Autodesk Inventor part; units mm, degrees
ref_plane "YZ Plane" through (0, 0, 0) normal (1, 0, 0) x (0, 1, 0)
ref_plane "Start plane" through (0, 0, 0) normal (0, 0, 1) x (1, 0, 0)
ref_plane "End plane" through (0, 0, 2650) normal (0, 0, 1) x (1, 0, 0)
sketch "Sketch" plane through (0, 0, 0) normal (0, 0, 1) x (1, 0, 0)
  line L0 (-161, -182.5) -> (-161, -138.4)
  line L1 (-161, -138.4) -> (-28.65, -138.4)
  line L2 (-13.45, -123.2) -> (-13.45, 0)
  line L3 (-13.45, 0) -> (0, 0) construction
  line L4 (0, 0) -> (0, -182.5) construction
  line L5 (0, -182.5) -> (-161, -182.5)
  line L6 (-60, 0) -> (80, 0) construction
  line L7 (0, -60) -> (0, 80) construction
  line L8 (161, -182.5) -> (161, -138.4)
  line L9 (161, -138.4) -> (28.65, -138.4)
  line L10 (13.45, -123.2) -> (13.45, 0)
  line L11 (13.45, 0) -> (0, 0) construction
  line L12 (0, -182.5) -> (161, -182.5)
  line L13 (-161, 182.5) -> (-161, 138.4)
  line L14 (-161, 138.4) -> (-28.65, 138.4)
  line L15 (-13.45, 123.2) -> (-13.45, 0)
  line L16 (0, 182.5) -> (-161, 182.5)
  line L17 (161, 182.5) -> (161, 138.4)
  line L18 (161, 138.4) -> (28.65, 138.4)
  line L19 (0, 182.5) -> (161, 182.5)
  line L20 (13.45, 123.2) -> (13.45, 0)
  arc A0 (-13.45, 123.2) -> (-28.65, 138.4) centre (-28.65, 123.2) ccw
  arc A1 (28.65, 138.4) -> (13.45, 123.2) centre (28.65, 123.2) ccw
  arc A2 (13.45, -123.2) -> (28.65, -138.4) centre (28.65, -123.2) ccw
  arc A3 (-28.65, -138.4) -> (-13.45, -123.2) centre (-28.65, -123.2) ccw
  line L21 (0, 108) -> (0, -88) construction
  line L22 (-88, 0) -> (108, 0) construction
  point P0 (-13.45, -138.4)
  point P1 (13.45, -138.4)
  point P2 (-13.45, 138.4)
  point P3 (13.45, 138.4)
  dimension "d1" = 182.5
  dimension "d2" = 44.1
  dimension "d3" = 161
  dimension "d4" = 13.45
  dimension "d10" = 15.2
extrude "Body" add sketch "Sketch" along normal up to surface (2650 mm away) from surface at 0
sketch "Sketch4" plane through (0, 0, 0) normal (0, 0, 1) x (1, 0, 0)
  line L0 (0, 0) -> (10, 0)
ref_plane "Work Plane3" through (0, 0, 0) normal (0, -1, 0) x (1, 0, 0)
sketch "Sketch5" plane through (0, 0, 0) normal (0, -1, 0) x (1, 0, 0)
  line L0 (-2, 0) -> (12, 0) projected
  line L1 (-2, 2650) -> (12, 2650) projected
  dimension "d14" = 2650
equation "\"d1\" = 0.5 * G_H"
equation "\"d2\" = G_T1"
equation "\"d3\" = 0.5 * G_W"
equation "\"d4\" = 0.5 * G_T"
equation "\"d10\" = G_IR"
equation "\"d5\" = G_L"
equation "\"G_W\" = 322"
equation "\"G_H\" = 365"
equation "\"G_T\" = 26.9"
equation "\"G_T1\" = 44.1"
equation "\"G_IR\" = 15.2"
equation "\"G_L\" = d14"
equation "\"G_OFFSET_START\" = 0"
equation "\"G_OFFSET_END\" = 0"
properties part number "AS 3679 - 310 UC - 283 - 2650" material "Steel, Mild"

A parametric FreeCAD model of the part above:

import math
import FreeCAD as App
import Part
import Sketcher

V = App.Vector
Q = App.Units.Quantity

doc = App.newDocument("Part")
body = doc.addObject("PartDesign::Body", "Body")

# Sketch on XY plane
sketch1 = doc.addObject("Sketcher::SketchObject", "Sketch")
body.addObject(sketch1)
sketch1.AttachmentSupport = (doc.XY_Plane, [""])
sketch1.MapMode = "FlatFace"
sketch1.addGeometry([
    Part.LineSegment(V(-161, -138, 0), V(-161, -182, 0)),  # 0
    Part.LineSegment(V(-161, -182, 0), V(161, -182, 0)),  # 1
    Part.LineSegment(V(161, -182, 0), V(161, -138, 0)),  # 2
    Part.LineSegment(V(161, -138, 0), V(29, -138, 0)),  # 3
    Part.ArcOfCircle(Part.Circle(V(29, -123, 0), V(0, 0, 1), 15), math.radians(180), math.radians(270)),  # 4
    Part.LineSegment(V(13, -123, 0), V(13, 123, 0)),  # 5
    Part.ArcOfCircle(Part.Circle(V(29, 123, 0), V(0, 0, 1), 15), math.radians(90), math.radians(180)),  # 6
    Part.LineSegment(V(29, 138, 0), V(161, 138, 0)),  # 7
    Part.LineSegment(V(161, 138, 0), V(161, 182, 0)),  # 8
    Part.LineSegment(V(161, 182, 0), V(-161, 182, 0)),  # 9
    Part.LineSegment(V(-161, 182, 0), V(-161, 138, 0)),  # 10
    Part.LineSegment(V(-161, 138, 0), V(-29, 138, 0)),  # 11
    Part.ArcOfCircle(Part.Circle(V(-29, 123, 0), V(0, 0, 1), 15), math.radians(0), math.radians(90)),  # 12
    Part.LineSegment(V(-13, 123, 0), V(-13, -123, 0)),  # 13
    Part.ArcOfCircle(Part.Circle(V(-29, -123, 0), V(0, 0, 1), 15), math.radians(-90), math.radians(0)),  # 14
    Part.LineSegment(V(-29, -138, 0), V(-161, -138, 0)),  # 15
], False)
sketch1.addConstraint([
    Sketcher.Constraint("Coincident", 0, 2, 1, 1),
    Sketcher.Constraint("Coincident", 1, 2, 2, 1),
    Sketcher.Constraint("Coincident", 2, 2, 3, 1),
    Sketcher.Constraint("Tangent", 3, 2, 4, 2),
    Sketcher.Constraint("Tangent", 4, 1, 5, 1),
    Sketcher.Constraint("Tangent", 5, 2, 6, 2),
    Sketcher.Constraint("Tangent", 6, 1, 7, 1),
    Sketcher.Constraint("Coincident", 7, 2, 8, 1),
    Sketcher.Constraint("Coincident", 8, 2, 9, 1),
    Sketcher.Constraint("Coincident", 9, 2, 10, 1),
    Sketcher.Constraint("Coincident", 10, 2, 11, 1),
    Sketcher.Constraint("Tangent", 11, 2, 12, 2),
    Sketcher.Constraint("Tangent", 12, 1, 13, 1),
    Sketcher.Constraint("Tangent", 13, 2, 14, 2),
    Sketcher.Constraint("Tangent", 14, 1, 15, 1),
    Sketcher.Constraint("Coincident", 15, 2, 0, 1),
    Sketcher.Constraint("Vertical", 0),
    Sketcher.Constraint("Horizontal", 1),
    Sketcher.Constraint("Vertical", 2),
    Sketcher.Constraint("Horizontal", 3),
    Sketcher.Constraint("Vertical", 5),
    Sketcher.Constraint("Horizontal", 7),
    Sketcher.Constraint("Vertical", 8),
    Sketcher.Constraint("Horizontal", 9),
    Sketcher.Constraint("Vertical", 10),
    Sketcher.Constraint("Horizontal", 11),
    Sketcher.Constraint("Vertical", 13),
    Sketcher.Constraint("Horizontal", 15),
    Sketcher.Constraint("Equal", 4, 6),
    Sketcher.Constraint("Equal", 6, 12),
    Sketcher.Constraint("Equal", 12, 14),
    Sketcher.Constraint("Symmetric", 4, 3, 12, 3, -1, 1),
    Sketcher.Constraint("Symmetric", 0, 2, 8, 2, -1, 1),
    Sketcher.Constraint("Symmetric", 7, 2, 10, 2, -2),
    Sketcher.Constraint("Symmetric", 2, 2, 15, 2, -2),
    Sketcher.Constraint("Radius", 4, Q("15.2 mm")),
    Sketcher.Constraint("DistanceY", 0, 2, 0, 1, Q("44.1 mm")),
    Sketcher.Constraint("DistanceX", 0, 2, -1, 1, Q("161 mm")),
    Sketcher.Constraint("DistanceY", 0, 2, -1, 1, Q("182.5 mm")),
    Sketcher.Constraint("DistanceX", -1, 1, 4, 1, Q("13.45 mm")),
])
pad1 = doc.addObject("PartDesign::Pad", "Pad")
body.addObject(pad1)
pad1.Profile = sketch1
pad1.Length = 2650

doc.recompute()
